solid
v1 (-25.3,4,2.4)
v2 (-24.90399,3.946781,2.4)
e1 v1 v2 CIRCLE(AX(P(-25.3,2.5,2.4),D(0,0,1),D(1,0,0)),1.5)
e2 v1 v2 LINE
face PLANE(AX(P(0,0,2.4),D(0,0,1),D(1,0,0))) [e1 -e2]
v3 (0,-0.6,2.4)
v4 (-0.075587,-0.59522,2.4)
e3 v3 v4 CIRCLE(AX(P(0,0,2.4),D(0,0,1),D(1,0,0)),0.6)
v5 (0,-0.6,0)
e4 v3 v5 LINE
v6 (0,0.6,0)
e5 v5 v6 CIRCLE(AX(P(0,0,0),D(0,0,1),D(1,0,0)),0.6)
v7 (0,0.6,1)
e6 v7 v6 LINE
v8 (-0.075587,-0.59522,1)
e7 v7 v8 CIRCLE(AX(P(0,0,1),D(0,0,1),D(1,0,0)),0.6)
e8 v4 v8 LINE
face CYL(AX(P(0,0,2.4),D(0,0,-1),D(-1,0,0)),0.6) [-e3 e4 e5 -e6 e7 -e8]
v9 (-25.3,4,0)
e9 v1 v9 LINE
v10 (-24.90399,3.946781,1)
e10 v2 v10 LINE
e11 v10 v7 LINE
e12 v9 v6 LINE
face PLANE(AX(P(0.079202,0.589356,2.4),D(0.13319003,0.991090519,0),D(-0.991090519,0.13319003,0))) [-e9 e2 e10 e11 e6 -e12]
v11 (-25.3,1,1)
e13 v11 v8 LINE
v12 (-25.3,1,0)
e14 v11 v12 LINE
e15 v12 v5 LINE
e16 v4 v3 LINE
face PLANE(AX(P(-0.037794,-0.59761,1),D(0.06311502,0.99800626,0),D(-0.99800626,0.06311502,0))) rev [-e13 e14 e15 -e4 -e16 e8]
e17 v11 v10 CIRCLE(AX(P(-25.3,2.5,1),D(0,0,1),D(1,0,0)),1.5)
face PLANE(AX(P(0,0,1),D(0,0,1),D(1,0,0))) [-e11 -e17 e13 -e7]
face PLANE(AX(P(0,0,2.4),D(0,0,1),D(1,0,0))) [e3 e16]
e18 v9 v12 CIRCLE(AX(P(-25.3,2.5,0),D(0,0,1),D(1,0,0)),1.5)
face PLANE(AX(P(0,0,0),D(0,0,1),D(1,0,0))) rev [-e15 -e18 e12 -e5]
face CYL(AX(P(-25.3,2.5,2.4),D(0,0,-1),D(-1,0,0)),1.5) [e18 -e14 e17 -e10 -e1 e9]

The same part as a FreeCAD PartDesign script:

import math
import FreeCAD as App
import Part
import Sketcher
from FreeCAD import Vector
Q = App.Units.Quantity

doc = App.newDocument("Part")
params = doc.addObject("Spreadsheet::Sheet", "Params")
for row, (alias, value) in enumerate([
    ("sketch1_radius", "1.5 mm"),
    ("pad1_length", "2.4 mm"),
    ("sketch2_radius", "0.6 mm"),
    ("pad2_length", "2.4 mm"),
    ("sketch3_radius", "1.5 mm"),
    ("sketch3_radius2", "0.6 mm"),
    ("pad3_length", "1 mm"),
], start=1):
    params.set(f"A{row}", alias)
    params.set(f"B{row}", "=" + value)
    params.setAlias(f"B{row}", alias)

body = doc.addObject("PartDesign::Body", "Body")

sketch1 = doc.addObject("Sketcher::SketchObject", "Sketch")
body.addObject(sketch1)
sketch1.AttachmentSupport = (doc.XY_Plane, [""])
sketch1.MapMode = "FlatFace"
sketch1.addGeometry([
    Part.LineSegment(Vector(-24.9, 3.95, 0), Vector(-25.3, 4, 0)),
    Part.ArcOfCircle(Part.Circle(Vector(-25.3, 2.5, 0), Vector(0, 0, 1), 1.5), math.radians(90), math.radians(270)),
    Part.ArcOfCircle(Part.Circle(Vector(-25.3, 2.5, 0), Vector(0, 0, 1), 1.5), math.radians(-90), math.radians(0)),
    Part.ArcOfCircle(Part.Circle(Vector(-25.3, 2.5, 0), Vector(0, 0, 1), 1.5), math.radians(0), math.radians(75)),
], False)
sketch1.addConstraint([
    Sketcher.Constraint("Coincident", 0, 2, 1, 1),
    Sketcher.Constraint("Tangent", 1, 2, 2, 1),
    Sketcher.Constraint("Tangent", 2, 2, 3, 1),
    Sketcher.Constraint("Coincident", 3, 2, 0, 1),
    Sketcher.Constraint("Coincident", 3, 3, 1, 3),
    Sketcher.Constraint("Horizontal", 3, 3, 2, 2),
    Sketcher.Constraint("Vertical", 3, 3, 0, 2),
    Sketcher.Constraint("Vertical", 0, 2, 1, 2),
    Sketcher.Constraint("Radius", 1, Q("1.5 mm")),
    Sketcher.Constraint("DistanceY", -1, 1, 0, 2, Q("4 mm")),
    Sketcher.Constraint("DistanceX", 1, 3, -1, 1, Q("25.3 mm")),
    Sketcher.Constraint("Distance", 0, Q("0.39957 mm")),
])
sketch1.setExpression("Constraints[8]", "Params.sketch1_radius")
pad1 = doc.addObject("PartDesign::Pad", "Pad")
body.addObject(pad1)
pad1.Profile = sketch1
pad1.setExpression("Length", "Params.pad1_length")
body2 = doc.addObject("PartDesign::Body", "Body001")

sketch2 = doc.addObject("Sketcher::SketchObject", "Sketch001")
body2.addObject(sketch2)
sketch2.AttachmentSupport = (doc.getObject("XY_Plane001"), [""])
sketch2.MapMode = "FlatFace"
sketch2.addGeometry([
    Part.ArcOfCircle(Part.Circle(Vector(0, 0, 0), Vector(0, 0, 1), 0.6), math.radians(0), math.radians(90)),
    Part.ArcOfCircle(Part.Circle(Vector(0, 0, 0), Vector(0, 0, 1), 0.6), math.radians(90), math.radians(263)),
    Part.LineSegment(Vector(-0.08, -0.6, 0), Vector(0, -0.6, 0)),
    Part.ArcOfCircle(Part.Circle(Vector(0, 0, 0), Vector(0, 0, 1), 0.6), math.radians(-90), math.radians(0)),
], False)
sketch2.addConstraint([
    Sketcher.Constraint("Tangent", 0, 2, 1, 1),
    Sketcher.Constraint("Coincident", 1, 2, 2, 1),
    Sketcher.Constraint("Coincident", 2, 2, 3, 1),
    Sketcher.Constraint("Tangent", 3, 2, 0, 1),
    Sketcher.Constraint("Coincident", 0, 3, -1, 1),
    Sketcher.Constraint("Equal", 0, 1),
    Sketcher.Constraint("Equal", 1, 3),
    Sketcher.Constraint("PointOnObject", 0, 2, -2),
    Sketcher.Constraint("PointOnObject", 2, 2, -2),
    Sketcher.Constraint("PointOnObject", 3, 2, -1),
    Sketcher.Constraint("Radius", 0, Q("0.6 mm")),
    Sketcher.Constraint("Distance", 2, Q("0.075738 mm")),
])
sketch2.setExpression("Constraints[10]", "Params.sketch2_radius")
pad2 = doc.addObject("PartDesign::Pad", "Pad001")
body2.addObject(pad2)
pad2.Profile = sketch2
pad2.setExpression("Length", "Params.pad2_length")
body.AllowCompound = True
doc.recompute()

boolean = doc.addObject("PartDesign::Boolean", "Boolean")
body.addObject(boolean)
boolean.Type = "Fuse"
boolean.addObjects([body2])

sketch3 = doc.addObject("Sketcher::SketchObject", "Sketch002")
body.addObject(sketch3)
sketch3.AttachmentSupport = (doc.XY_Plane, [""])
sketch3.MapMode = "FlatFace"
sketch3.addGeometry([
    Part.LineSegment(Vector(0, 0.6, 0), Vector(-24.9, 3.9, 0)),
    Part.ArcOfCircle(Part.Circle(Vector(-25.3, 2.5, 0), Vector(0, 0, 1), 1.5), math.radians(0), math.radians(75)),
    Part.ArcOfCircle(Part.Circle(Vector(-25.3, 2.5, 0), Vector(0, 0, 1), 1.5), math.radians(-90), math.radians(0)),
    Part.LineSegment(Vector(-25.3, 1, 0), Vector(-0.1, -0.6, 0)),
    Part.ArcOfCircle(Part.Circle(Vector(0, 0, 0), Vector(0, 0, 1), 0.6), math.radians(90), math.radians(263)),
], False)
sketch3.addConstraint([
    Sketcher.Constraint("Coincident", 0, 2, 1, 2),
    Sketcher.Constraint("Tangent", 1, 1, 2, 2),
    Sketcher.Constraint("Coincident", 2, 1, 3, 1),
    Sketcher.Constraint("Coincident", 3, 2, 4, 2),
    Sketcher.Constraint("Coincident", 4, 1, 0, 1),
    Sketcher.Constraint("Coincident", 4, 3, -1, 1),
    Sketcher.Constraint("Equal", 1, 2),
    Sketcher.Constraint("PointOnObject", 4, 1, -2),
    Sketcher.Constraint("Horizontal", 2, 3, 1, 1),
    Sketcher.Constraint("Vertical", 1, 3, 2, 1),
    Sketcher.Constraint("Radius", 1, Q("1.5 mm")),
    Sketcher.Constraint("Radius", 4, Q("0.6 mm")),
    Sketcher.Constraint("DistanceY", -1, 1, 2, 1, Q("1 mm")),
    Sketcher.Constraint("DistanceX", 1, 3, -1, 1, Q("25.3 mm")),
    Sketcher.Constraint("DistanceY", 3, 2, 0, 2, Q("4.542001 mm")),
    Sketcher.Constraint("DistanceX", 0, 2, -1, 1, Q("24.90399 mm")),
])
sketch3.setExpression("Constraints[10]", "Params.sketch3_radius")
sketch3.setExpression("Constraints[11]", "Params.sketch3_radius2")
pad3 = doc.addObject("PartDesign::Pad", "Pad002")
body.addObject(pad3)
pad3.Profile = sketch3
pad3.setExpression("Length", "Params.pad3_length")

doc.recompute()
